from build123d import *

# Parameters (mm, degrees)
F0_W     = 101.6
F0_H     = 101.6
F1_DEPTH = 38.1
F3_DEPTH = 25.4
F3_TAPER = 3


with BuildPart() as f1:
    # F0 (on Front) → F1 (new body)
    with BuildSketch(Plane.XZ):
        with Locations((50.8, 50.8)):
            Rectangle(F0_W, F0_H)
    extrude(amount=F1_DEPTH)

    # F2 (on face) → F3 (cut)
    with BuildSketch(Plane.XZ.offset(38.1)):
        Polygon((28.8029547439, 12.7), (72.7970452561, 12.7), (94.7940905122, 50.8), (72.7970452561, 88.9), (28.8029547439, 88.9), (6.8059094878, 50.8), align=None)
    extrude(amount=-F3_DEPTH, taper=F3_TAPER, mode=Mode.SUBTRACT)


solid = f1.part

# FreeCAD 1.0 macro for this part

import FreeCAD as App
import Part
import Sketcher
from FreeCAD import Vector
Q = App.Units.Quantity


def add_polygon(sketch, points):
    """Adds a closed chain of lines whose ends are joined by coincident constraints."""
    first, n = sketch.GeometryCount, len(points)
    for a, b in zip(points, points[1:] + points[:1]):
        sketch.addGeometry(Part.LineSegment(App.Vector(*a, 0), App.Vector(*b, 0)), False)
    for i in range(n):
        sketch.addConstraint(Sketcher.Constraint("Coincident", first + i, 2, first + (i + 1) % n, 1))

doc = App.newDocument("Part")
body = doc.addObject("PartDesign::Body", "Body")

sketch1 = body.newObject("Sketcher::SketchObject", "Sketch")
sketch1.AttachmentSupport = (doc.getObject("XZ_Plane"), [""])
sketch1.MapMode = "FlatFace"
add_polygon(sketch1, [(0, 102), (0, 0), (102, 0), (102, 102)])
sketch1.addConstraint([
    Sketcher.Constraint("Vertical", 0),
    Sketcher.Constraint("Horizontal", 1),
    Sketcher.Constraint("Vertical", 2),
    Sketcher.Constraint("Horizontal", 3),
    Sketcher.Constraint("Coincident", 0, 2, -1, 1),
    Sketcher.Constraint("Equal", 3, 0),
    Sketcher.Constraint("DistanceX", 1, 1, 1, 2, Q("4 in")),
])
pad1 = body.newObject("PartDesign::Pad", "Pad")
pad1.Profile = sketch1
pad1.Length = Q("1.5 in")

sketch2 = body.newObject("Sketcher::SketchObject", "Sketch001")
sketch2.AttachmentSupport = (doc.getObject("XZ_Plane"), [""])
sketch2.MapMode = "FlatFace"
sketch2.AttachmentOffset = App.Placement(Vector(0, 0, 1.5 * 25.4), App.Rotation())
add_polygon(sketch2, [(29, 13), (73, 13), (95, 51), (73, 89), (29, 89), (7, 51)])
sketch2.addConstraint([
    Sketcher.Constraint("Horizontal", 0),
    Sketcher.Constraint("Horizontal", 3),
    Sketcher.Constraint("Parallel", 1, 4),
    Sketcher.Constraint("Parallel", 2, 5),
    Sketcher.Constraint("Horizontal", 1, 2, 4, 2),
    Sketcher.Constraint("Vertical", 0, 2, 2, 2),
    Sketcher.Constraint("Vertical", 3, 2, 5, 2),
    Sketcher.Constraint("DistanceY", -1, 1, 1, 2, Q("2 in")),
    Sketcher.Constraint("Angle", 1, Q("60 deg")),
    Sketcher.Constraint("DistanceY", 0, 2, 2, 2, Q("3 in")),
    Sketcher.Constraint("DistanceX", 0, 1, 0, 2, 43.994091),
    Sketcher.Constraint("DistanceX", -1, 1, 1, 2, 94.794091),
])
pocket1 = body.newObject("PartDesign::Pocket", "Pocket")
pocket1.Profile = sketch2
pocket1.Length = Q("1 in")
pocket1.TaperAngle = -3

doc.recompute()
